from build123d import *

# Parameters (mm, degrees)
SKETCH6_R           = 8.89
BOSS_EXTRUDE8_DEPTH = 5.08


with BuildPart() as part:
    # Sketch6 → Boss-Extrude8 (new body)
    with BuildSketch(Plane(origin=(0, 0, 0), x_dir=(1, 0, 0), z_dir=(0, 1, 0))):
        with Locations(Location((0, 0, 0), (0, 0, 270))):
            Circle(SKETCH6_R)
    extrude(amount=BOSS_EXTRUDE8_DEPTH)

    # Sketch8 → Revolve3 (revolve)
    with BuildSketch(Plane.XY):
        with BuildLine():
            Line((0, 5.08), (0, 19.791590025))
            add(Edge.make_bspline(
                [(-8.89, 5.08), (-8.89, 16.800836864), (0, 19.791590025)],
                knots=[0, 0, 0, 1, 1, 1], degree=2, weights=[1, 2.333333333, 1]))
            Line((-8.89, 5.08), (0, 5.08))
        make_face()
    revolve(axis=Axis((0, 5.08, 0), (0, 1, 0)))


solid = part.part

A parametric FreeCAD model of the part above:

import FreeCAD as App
import Part
import Sketcher
Q = App.Units.Quantity

doc = App.newDocument("Part")
body = doc.addObject("PartDesign::Body", "Body")

# Sketch on XZ plane
sketch1 = body.newObject("Sketcher::SketchObject", "Sketch")
sketch1.AttachmentSupport = (doc.getObject("XZ_Plane"), [""])
sketch1.MapMode = "FlatFace"
sketch1.addGeometry(Part.Circle(App.Vector(0, 0, 0), App.Vector(0, 0, 1), 9), False)
sketch1.addConstraint(Sketcher.Constraint("Coincident", 0, 3, -1, 1))
sketch1.addConstraint(Sketcher.Constraint("Diameter", 0, Q("0.7 in")))
pad1 = body.newObject("PartDesign::Pad", "Pad")
pad1.Profile = sketch1
pad1.Length = Q("0.2 in")
pad1.Reversed = True

# Sketch on XY plane
sketch2 = body.newObject("Sketcher::SketchObject", "Sketch001")
sketch2.AttachmentSupport = (doc.getObject("XY_Plane"), [""])
sketch2.MapMode = "FlatFace"
sketch2.addGeometry(Part.LineSegment(App.Vector(0, 5.08, 0), App.Vector(0, 19.79159, 0)), False)
sketch2.addGeometry(Part.BSplineCurve([App.Vector(-8.89, 5.08, 0), App.Vector(-8.89, 16.800837, 0), App.Vector(0, 19.79159, 0)], [3, 3], [0, 1], False, 2, [1, 2.333333333, 1], False), False)
sketch2.addGeometry(Part.LineSegment(App.Vector(-8.89, 5.08, 0), App.Vector(0, 5.08, 0)), False)
sketch2.addConstraint(Sketcher.Constraint("Block", 1))
sketch2.addConstraint(Sketcher.Constraint("Coincident", 0, 2, 1, 2))
sketch2.addConstraint(Sketcher.Constraint("Coincident", 1, 1, 2, 1))
sketch2.addConstraint(Sketcher.Constraint("Coincident", 2, 2, 0, 1))
sketch2.addConstraint(Sketcher.Constraint("Vertical", 0))
sketch2.addConstraint(Sketcher.Constraint("Horizontal", 2))
revolution = body.newObject("PartDesign::Revolution", "Revolution")
revolution.Profile = sketch2
revolution.ReferenceAxis = (sketch2, ["V_Axis"])
revolution.Angle = 360

doc.recompute()
